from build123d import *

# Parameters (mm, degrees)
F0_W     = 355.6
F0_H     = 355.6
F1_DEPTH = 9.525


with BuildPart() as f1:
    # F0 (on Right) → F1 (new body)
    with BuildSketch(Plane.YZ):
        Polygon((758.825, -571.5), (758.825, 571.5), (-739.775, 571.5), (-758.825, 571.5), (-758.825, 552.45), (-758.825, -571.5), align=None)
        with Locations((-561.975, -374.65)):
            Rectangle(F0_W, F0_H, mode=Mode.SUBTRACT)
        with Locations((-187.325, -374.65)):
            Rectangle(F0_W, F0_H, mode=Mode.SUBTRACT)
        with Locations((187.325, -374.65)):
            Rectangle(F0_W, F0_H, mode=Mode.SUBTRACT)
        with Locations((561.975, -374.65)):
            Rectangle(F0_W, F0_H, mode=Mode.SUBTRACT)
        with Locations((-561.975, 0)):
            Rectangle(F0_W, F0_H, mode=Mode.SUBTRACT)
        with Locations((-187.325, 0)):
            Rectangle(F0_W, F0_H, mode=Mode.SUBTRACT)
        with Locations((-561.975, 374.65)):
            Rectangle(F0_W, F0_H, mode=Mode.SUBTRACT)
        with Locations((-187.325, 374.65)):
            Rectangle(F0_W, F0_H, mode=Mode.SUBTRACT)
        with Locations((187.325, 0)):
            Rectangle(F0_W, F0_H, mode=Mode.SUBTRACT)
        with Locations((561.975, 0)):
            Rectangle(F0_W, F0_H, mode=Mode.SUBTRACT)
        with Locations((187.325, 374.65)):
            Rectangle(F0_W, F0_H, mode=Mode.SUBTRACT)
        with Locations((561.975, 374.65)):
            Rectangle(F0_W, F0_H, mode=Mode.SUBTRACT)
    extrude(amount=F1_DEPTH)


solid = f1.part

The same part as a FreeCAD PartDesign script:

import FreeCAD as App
import Part
import Sketcher
Q = App.Units.Quantity


def add_polygon(sketch, points):
    """Adds a closed chain of lines whose ends are joined by coincident constraints."""
    first, n = sketch.GeometryCount, len(points)
    for a, b in zip(points, points[1:] + points[:1]):
        sketch.addGeometry(Part.LineSegment(App.Vector(*a, 0), App.Vector(*b, 0)), False)
    for i in range(n):
        sketch.addConstraint(Sketcher.Constraint("Coincident", first + i, 2, first + (i + 1) % n, 1))

doc = App.newDocument("Part")
body = doc.addObject("PartDesign::Body", "Body")

sketch1 = body.newObject("Sketcher::SketchObject", "Sketch")
sketch1.AttachmentSupport = (doc.getObject("YZ_Plane"), [""])
sketch1.MapMode = "FlatFace"
add_polygon(sketch1, [(759, -572), (759, 572), (-759, 572), (-759, -572)])
add_polygon(sketch1, [(-384, -552), (-740, -552), (-740, -197), (-384, -197)])
add_polygon(sketch1, [(-10, -552), (-365, -552), (-365, -197), (-10, -197)])
add_polygon(sketch1, [(365, -552), (10, -552), (10, -197), (365, -197)])
add_polygon(sketch1, [(740, -552), (384, -552), (384, -197), (740, -197)])
add_polygon(sketch1, [(-384, -178), (-740, -178), (-740, 178), (-384, 178)])
add_polygon(sketch1, [(-10, -178), (-365, -178), (-365, 178), (-10, 178)])
add_polygon(sketch1, [(-384, 197), (-740, 197), (-740, 552), (-384, 552)])
add_polygon(sketch1, [(-10, 197), (-365, 197), (-365, 552), (-10, 552)])
add_polygon(sketch1, [(365, -178), (10, -178), (10, 178), (365, 178)])
add_polygon(sketch1, [(740, -178), (384, -178), (384, 178), (740, 178)])
add_polygon(sketch1, [(365, 197), (10, 197), (10, 552), (365, 552)])
add_polygon(sketch1, [(740, 197), (384, 197), (384, 552), (740, 552)])
sketch1.addConstraint(Sketcher.Constraint("Vertical", 0))
sketch1.addConstraint(Sketcher.Constraint("Horizontal", 1))
sketch1.addConstraint(Sketcher.Constraint("Vertical", 2))
sketch1.addConstraint(Sketcher.Constraint("Horizontal", 3))
sketch1.addConstraint(Sketcher.Constraint("Horizontal", 4))
sketch1.addConstraint(Sketcher.Constraint("Vertical", 5))
sketch1.addConstraint(Sketcher.Constraint("Horizontal", 6))
sketch1.addConstraint(Sketcher.Constraint("Vertical", 7))
sketch1.addConstraint(Sketcher.Constraint("Horizontal", 8))
sketch1.addConstraint(Sketcher.Constraint("Vertical", 9))
sketch1.addConstraint(Sketcher.Constraint("Horizontal", 10))
sketch1.addConstraint(Sketcher.Constraint("Vertical", 11))
sketch1.addConstraint(Sketcher.Constraint("Horizontal", 12))
sketch1.addConstraint(Sketcher.Constraint("Vertical", 13))
sketch1.addConstraint(Sketcher.Constraint("Horizontal", 14))
sketch1.addConstraint(Sketcher.Constraint("Vertical", 15))
sketch1.addConstraint(Sketcher.Constraint("Horizontal", 16))
sketch1.addConstraint(Sketcher.Constraint("Vertical", 17))
sketch1.addConstraint(Sketcher.Constraint("Horizontal", 18))
sketch1.addConstraint(Sketcher.Constraint("Vertical", 19))
sketch1.addConstraint(Sketcher.Constraint("Horizontal", 20))
sketch1.addConstraint(Sketcher.Constraint("Vertical", 21))
sketch1.addConstraint(Sketcher.Constraint("Horizontal", 22))
sketch1.addConstraint(Sketcher.Constraint("Vertical", 23))
sketch1.addConstraint(Sketcher.Constraint("Horizontal", 24))
sketch1.addConstraint(Sketcher.Constraint("Vertical", 25))
sketch1.addConstraint(Sketcher.Constraint("Horizontal", 26))
sketch1.addConstraint(Sketcher.Constraint("Vertical", 27))
sketch1.addConstraint(Sketcher.Constraint("Horizontal", 28))
sketch1.addConstraint(Sketcher.Constraint("Vertical", 29))
sketch1.addConstraint(Sketcher.Constraint("Horizontal", 30))
sketch1.addConstraint(Sketcher.Constraint("Vertical", 31))
sketch1.addConstraint(Sketcher.Constraint("Horizontal", 32))
sketch1.addConstraint(Sketcher.Constraint("Vertical", 33))
sketch1.addConstraint(Sketcher.Constraint("Horizontal", 34))
sketch1.addConstraint(Sketcher.Constraint("Vertical", 35))
sketch1.addConstraint(Sketcher.Constraint("Horizontal", 36))
sketch1.addConstraint(Sketcher.Constraint("Vertical", 37))
sketch1.addConstraint(Sketcher.Constraint("Horizontal", 38))
sketch1.addConstraint(Sketcher.Constraint("Vertical", 39))
sketch1.addConstraint(Sketcher.Constraint("Horizontal", 40))
sketch1.addConstraint(Sketcher.Constraint("Vertical", 41))
sketch1.addConstraint(Sketcher.Constraint("Horizontal", 42))
sketch1.addConstraint(Sketcher.Constraint("Vertical", 43))
sketch1.addConstraint(Sketcher.Constraint("Horizontal", 44))
sketch1.addConstraint(Sketcher.Constraint("Vertical", 45))
sketch1.addConstraint(Sketcher.Constraint("Horizontal", 46))
sketch1.addConstraint(Sketcher.Constraint("Vertical", 47))
sketch1.addConstraint(Sketcher.Constraint("Horizontal", 48))
sketch1.addConstraint(Sketcher.Constraint("Vertical", 49))
sketch1.addConstraint(Sketcher.Constraint("Horizontal", 50))
sketch1.addConstraint(Sketcher.Constraint("Vertical", 51))
sketch1.addConstraint(Sketcher.Constraint("Symmetric", 0, 2, 2, 2, -1, 1))
sketch1.addConstraint(Sketcher.Constraint("Symmetric", 18, 2, 28, 2, -1, 1))
sketch1.addConstraint(Sketcher.Constraint("Symmetric", 16, 2, 30, 2, -1, 1))
sketch1.addConstraint(Sketcher.Constraint("Symmetric", 14, 2, 32, 2, -1, 1))
sketch1.addConstraint(Sketcher.Constraint("Symmetric", 12, 2, 34, 2, -1, 1))
sketch1.addConstraint(Sketcher.Constraint("Symmetric", 26, 2, 36, 2, -1, 1))
sketch1.addConstraint(Sketcher.Constraint("Symmetric", 24, 2, 38, 2, -1, 1))
sketch1.addConstraint(Sketcher.Constraint("Symmetric", 22, 2, 40, 2, -1, 1))
sketch1.addConstraint(Sketcher.Constraint("Symmetric", 20, 2, 42, 2, -1, 1))
sketch1.addConstraint(Sketcher.Constraint("Symmetric", 10, 2, 44, 2, -1, 1))
sketch1.addConstraint(Sketcher.Constraint("Symmetric", 8, 2, 46, 2, -1, 1))
sketch1.addConstraint(Sketcher.Constraint("Symmetric", 6, 2, 48, 2, -1, 1))
sketch1.addConstraint(Sketcher.Constraint("Symmetric", 4, 2, 50, 2, -1, 1))
sketch1.addConstraint(Sketcher.Constraint("Symmetric", 11, 2, 12, 2, -2))
sketch1.addConstraint(Sketcher.Constraint("Symmetric", 9, 2, 14, 2, -2))
sketch1.addConstraint(Sketcher.Constraint("Symmetric", 7, 2, 16, 2, -2))
sketch1.addConstraint(Sketcher.Constraint("Symmetric", 5, 2, 18, 2, -2))
sketch1.addConstraint(Sketcher.Constraint("Horizontal", 7, 2, 8, 2))
sketch1.addConstraint(Sketcher.Constraint("Horizontal", 6, 2, 9, 2))
sketch1.addConstraint(Sketcher.Constraint("Horizontal", 23, 2, 24, 2))
sketch1.addConstraint(Sketcher.Constraint("Horizontal", 22, 2, 25, 2))
sketch1.addConstraint(Sketcher.Constraint("Horizontal", 27, 2, 36, 2))
sketch1.addConstraint(Sketcher.Constraint("Vertical", 5, 2, 20, 2))
sketch1.addConstraint(Sketcher.Constraint("Vertical", 7, 2, 22, 2))
sketch1.addConstraint(Sketcher.Constraint("Vertical", 9, 2, 24, 2))
sketch1.addConstraint(Sketcher.Constraint("Vertical", 11, 2, 26, 2))
sketch1.addConstraint(Sketcher.Constraint("Equal", 6, 8))
sketch1.addConstraint(Sketcher.Constraint("Equal", 50, 5))
sketch1.addConstraint(Sketcher.Constraint("Equal", 19, 21))
sketch1.addConstraint(Sketcher.Constraint("DistanceX", 4, 2, 4, 1, Q("14 in")))
sketch1.addConstraint(Sketcher.Constraint("DistanceY", 0, 1, 0, 2, Q("45 in")))
sketch1.addConstraint(Sketcher.Constraint("DistanceX", 4, 2, 3, 2, Q("59 in")))
sketch1.addConstraint(Sketcher.Constraint("DistanceX", 1, 2, 1, 1, Q("59.75 in")))
sketch1.addConstraint(Sketcher.Constraint("DistanceX", 2, 2, 8, 2, Q("15.5 in")))
sketch1.addConstraint(Sketcher.Constraint("DistanceY", 4, 2, -1, 1, Q("21.75 in")))
pad1 = body.newObject("PartDesign::Pad", "Pad")
pad1.Profile = sketch1
pad1.Length = Q("0.375 in")

doc.recompute()
